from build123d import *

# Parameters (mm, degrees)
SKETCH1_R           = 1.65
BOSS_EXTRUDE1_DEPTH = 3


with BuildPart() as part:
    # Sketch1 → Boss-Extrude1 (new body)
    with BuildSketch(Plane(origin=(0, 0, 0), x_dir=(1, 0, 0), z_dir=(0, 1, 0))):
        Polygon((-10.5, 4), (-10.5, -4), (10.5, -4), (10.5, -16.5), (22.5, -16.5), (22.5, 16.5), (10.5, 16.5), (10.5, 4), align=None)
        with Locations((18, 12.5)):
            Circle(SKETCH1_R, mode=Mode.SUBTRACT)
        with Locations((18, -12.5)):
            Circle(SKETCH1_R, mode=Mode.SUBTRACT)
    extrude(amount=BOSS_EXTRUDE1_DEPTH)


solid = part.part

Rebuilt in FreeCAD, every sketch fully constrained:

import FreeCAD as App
import Part
import Sketcher


def add_polygon(sketch, points):
    """Adds a closed chain of lines whose ends are joined by coincident constraints."""
    first, n = sketch.GeometryCount, len(points)
    for a, b in zip(points, points[1:] + points[:1]):
        sketch.addGeometry(Part.LineSegment(App.Vector(*a, 0), App.Vector(*b, 0)), False)
    for i in range(n):
        sketch.addConstraint(Sketcher.Constraint("Coincident", first + i, 2, first + (i + 1) % n, 1))

doc = App.newDocument("Part")
body = doc.addObject("PartDesign::Body", "Body")

# Sketch on XZ plane
sketch1 = doc.addObject("Sketcher::SketchObject", "Sketch")
body.addObject(sketch1)
sketch1.AttachmentSupport = (doc.XZ_Plane, [""])
sketch1.MapMode = "FlatFace"
add_polygon(sketch1, [(-10.5, -4), (-10.5, 4), (10.5, 4), (10.5, 16.5), (22.5, 16.5), (22.5, -16.5), (10.5, -16.5), (10.5, -4)])  # lines 0-7
sketch1.addGeometry(Part.Circle(App.Vector(18, 12.5, 0), App.Vector(0, 0, 1), 1.65), False)  # 8
sketch1.addGeometry(Part.Circle(App.Vector(18, -12.5, 0), App.Vector(0, 0, 1), 1.65), False)  # 9
sketch1.addConstraint([
    Sketcher.Constraint("Vertical", 0),
    Sketcher.Constraint("Horizontal", 1),
    Sketcher.Constraint("Vertical", 2),
    Sketcher.Constraint("Horizontal", 3),
    Sketcher.Constraint("Vertical", 4),
    Sketcher.Constraint("Horizontal", 5),
    Sketcher.Constraint("Vertical", 6),
    Sketcher.Constraint("Horizontal", 7),
    Sketcher.Constraint("Equal", 8, 9),
    Sketcher.Constraint("Symmetric", 0, 2, 6, 2, -1, 1),
    Sketcher.Constraint("Symmetric", 8, 3, 9, 3, -1),
    Sketcher.Constraint("Symmetric", 2, 2, 5, 2, -1),
    Sketcher.Constraint("Diameter", 8, 3.3),
    Sketcher.Constraint("DistanceX", 1, 1, 1, 2, 21.0),
    Sketcher.Constraint("DistanceX", 3, 1, 3, 2, 12.0),
    Sketcher.Constraint("DistanceY", 0, 1, 0, 2, 8.0),
    Sketcher.Constraint("DistanceY", 4, 2, 4, 1, 33.0),
    Sketcher.Constraint("DistanceX", -1, 1, 8, 3, 18.0),
    Sketcher.Constraint("DistanceY", 9, 3, 8, 3, 25.0),
])
pad1 = doc.addObject("PartDesign::Pad", "Pad")
body.addObject(pad1)
pad1.Profile = sketch1
pad1.Length = 3
pad1.Reversed = True

doc.recompute()
